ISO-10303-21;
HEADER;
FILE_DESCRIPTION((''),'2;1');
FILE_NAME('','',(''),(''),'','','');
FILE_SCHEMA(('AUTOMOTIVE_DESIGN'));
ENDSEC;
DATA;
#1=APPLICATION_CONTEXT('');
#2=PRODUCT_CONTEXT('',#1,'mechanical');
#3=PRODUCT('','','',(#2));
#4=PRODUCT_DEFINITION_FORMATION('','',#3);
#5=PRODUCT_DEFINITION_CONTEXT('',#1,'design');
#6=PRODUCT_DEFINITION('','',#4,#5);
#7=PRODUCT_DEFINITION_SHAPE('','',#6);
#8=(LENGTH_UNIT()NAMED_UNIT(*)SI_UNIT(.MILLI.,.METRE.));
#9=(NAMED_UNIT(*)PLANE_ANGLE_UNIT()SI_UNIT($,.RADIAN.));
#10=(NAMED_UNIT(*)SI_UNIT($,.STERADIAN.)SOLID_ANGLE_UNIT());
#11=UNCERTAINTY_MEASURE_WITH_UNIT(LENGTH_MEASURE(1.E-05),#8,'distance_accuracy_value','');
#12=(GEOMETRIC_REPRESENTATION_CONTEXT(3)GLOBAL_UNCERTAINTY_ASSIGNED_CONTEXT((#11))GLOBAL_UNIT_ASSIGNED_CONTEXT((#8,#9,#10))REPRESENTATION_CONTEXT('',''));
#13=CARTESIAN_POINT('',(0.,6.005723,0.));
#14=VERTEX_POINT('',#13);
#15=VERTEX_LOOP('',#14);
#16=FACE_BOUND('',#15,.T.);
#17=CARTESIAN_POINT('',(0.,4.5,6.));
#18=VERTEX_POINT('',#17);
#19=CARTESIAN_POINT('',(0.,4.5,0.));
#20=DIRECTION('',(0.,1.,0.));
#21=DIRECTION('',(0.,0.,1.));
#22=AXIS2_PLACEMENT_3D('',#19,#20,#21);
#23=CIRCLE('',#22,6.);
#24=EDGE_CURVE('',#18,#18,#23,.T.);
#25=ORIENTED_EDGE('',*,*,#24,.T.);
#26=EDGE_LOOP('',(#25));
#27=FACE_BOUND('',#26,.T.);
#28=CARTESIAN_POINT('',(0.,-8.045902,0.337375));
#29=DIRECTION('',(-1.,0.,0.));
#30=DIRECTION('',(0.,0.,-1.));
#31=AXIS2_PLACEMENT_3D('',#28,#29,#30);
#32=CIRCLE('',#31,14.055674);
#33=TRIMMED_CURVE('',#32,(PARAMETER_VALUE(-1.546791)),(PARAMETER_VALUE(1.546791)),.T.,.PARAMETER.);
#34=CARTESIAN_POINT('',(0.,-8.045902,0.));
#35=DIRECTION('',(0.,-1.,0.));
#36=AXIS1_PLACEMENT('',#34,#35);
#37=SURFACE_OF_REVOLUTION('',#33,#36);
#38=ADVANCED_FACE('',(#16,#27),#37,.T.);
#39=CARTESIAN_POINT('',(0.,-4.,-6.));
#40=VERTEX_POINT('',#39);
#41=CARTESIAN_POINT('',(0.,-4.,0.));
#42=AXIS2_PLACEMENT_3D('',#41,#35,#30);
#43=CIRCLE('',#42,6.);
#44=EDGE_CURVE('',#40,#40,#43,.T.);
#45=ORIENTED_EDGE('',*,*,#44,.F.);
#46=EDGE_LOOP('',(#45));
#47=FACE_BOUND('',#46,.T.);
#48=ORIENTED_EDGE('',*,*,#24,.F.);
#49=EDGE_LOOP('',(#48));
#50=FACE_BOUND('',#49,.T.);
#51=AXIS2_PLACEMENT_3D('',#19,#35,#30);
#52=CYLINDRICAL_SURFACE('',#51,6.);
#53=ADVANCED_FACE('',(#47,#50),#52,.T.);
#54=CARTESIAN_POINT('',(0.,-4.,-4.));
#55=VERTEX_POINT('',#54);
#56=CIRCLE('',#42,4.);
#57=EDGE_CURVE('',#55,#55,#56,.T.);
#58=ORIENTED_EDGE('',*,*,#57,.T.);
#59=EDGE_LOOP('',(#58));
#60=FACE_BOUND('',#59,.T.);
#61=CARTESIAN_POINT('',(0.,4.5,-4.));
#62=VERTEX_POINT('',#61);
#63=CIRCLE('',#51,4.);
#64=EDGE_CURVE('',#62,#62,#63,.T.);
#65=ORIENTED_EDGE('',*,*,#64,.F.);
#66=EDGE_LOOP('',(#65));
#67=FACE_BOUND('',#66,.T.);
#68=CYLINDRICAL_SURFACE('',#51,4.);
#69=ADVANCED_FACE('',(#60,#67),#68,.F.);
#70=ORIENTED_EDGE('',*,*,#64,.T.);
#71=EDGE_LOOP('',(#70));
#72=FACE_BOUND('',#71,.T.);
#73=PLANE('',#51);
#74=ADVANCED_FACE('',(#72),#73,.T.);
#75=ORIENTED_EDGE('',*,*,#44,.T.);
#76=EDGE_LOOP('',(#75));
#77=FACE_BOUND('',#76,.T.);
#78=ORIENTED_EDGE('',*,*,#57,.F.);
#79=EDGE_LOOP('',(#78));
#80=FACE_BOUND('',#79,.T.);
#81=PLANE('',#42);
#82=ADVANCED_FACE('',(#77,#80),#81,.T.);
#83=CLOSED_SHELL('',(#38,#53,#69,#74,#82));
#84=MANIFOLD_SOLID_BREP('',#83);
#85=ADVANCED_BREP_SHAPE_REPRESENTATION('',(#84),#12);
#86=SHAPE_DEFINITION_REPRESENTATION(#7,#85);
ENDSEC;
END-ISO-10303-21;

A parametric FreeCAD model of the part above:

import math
import FreeCAD as App
import Part
import Sketcher

V = App.Vector

doc = App.newDocument("Part")
params = doc.addObject("Spreadsheet::Sheet", "Params")
for row, (alias, value) in enumerate([
    ("sketch1_diameter", "12 mm"),
    ("sketch1_diameter2", "8 mm"),
    ("pad1_length", "4.5 mm"),
    ("sketch2_height", "6 mm"),
    ("revolution_angle", "360 deg"),
    ("sketch3_diameter", "12 mm"),
    ("sketch3_diameter2", "8 mm"),
    ("pad2_length", "4 mm"),
], start=1):
    params.set(f"A{row}", alias)
    params.set(f"B{row}", "=" + value)
    params.setAlias(f"B{row}", alias)

body = doc.addObject("PartDesign::Body", "Body")

sketch1 = body.newObject("Sketcher::SketchObject", "Sketch")
sketch1.AttachmentSupport = (doc.getObject("XZ_Plane"), [""])
sketch1.MapMode = "FlatFace"
sketch1.addGeometry([
    Part.Circle(V(0, 0, 0), V(0, 0, 1), 6),
    Part.Circle(V(0, 0, 0), V(0, 0, 1), 4),
], False)
sketch1.addConstraint([
    Sketcher.Constraint("Coincident", 0, 3, -1, 1),
    Sketcher.Constraint("Coincident", 1, 3, -1, 1),
    Sketcher.Constraint("Diameter", 0, 12.0),
    Sketcher.Constraint("Diameter", 1, 8.0),
])
sketch1.setExpression("Constraints[2]", "Params.sketch1_diameter")
sketch1.setExpression("Constraints[3]", "Params.sketch1_diameter2")
pad1 = body.newObject("PartDesign::Pad", "Pad")
pad1.Profile = sketch1
pad1.setExpression("Length", "Params.pad1_length")
pad1.Reversed = True

sketch2 = body.newObject("Sketcher::SketchObject", "Sketch001")
sketch2.AttachmentSupport = (doc.getObject("YZ_Plane"), [""])
sketch2.MapMode = "FlatFace"
sketch2.addGeometry([
    Part.LineSegment(V(6, 0, 0), V(4.5, 0, 0)),
    Part.LineSegment(V(4.5, 0, 0), V(4.5, -6, 0)),
    Part.ArcOfCircle(Part.Circle(V(-8, 0.3, 0), V(0, 0, 1), 14.1), math.radians(-27), math.radians(-1)),
], False)
sketch2.addConstraint([
    Sketcher.Constraint("Coincident", 0, 2, 1, 1),
    Sketcher.Constraint("Coincident", 1, 2, 2, 1),
    Sketcher.Constraint("Coincident", 2, 2, 0, 1),
    Sketcher.Constraint("Horizontal", 0),
    Sketcher.Constraint("Vertical", 1),
    Sketcher.Constraint("PointOnObject", 0, 2, -1),
    Sketcher.Constraint("DistanceY", 1, 2, 1, 1, 6.0),
    Sketcher.Constraint("DistanceX", -1, 1, 0, 2, 4.5),
    Sketcher.Constraint("Radius", 2, 14.055674),
    Sketcher.Constraint("DistanceX", 0, 2, 0, 1, 1.505723),
])
sketch2.setExpression("Constraints[6]", "Params.sketch2_height")
revolution = body.newObject("PartDesign::Revolution", "Revolution")
revolution.Profile = sketch2
revolution.ReferenceAxis = (sketch2, ["H_Axis"])
revolution.setExpression("Angle", "Params.revolution_angle")

sketch3 = body.newObject("Sketcher::SketchObject", "Sketch002")
sketch3.AttachmentSupport = (doc.getObject("XZ_Plane"), [""])
sketch3.MapMode = "FlatFace"
sketch3.AttachmentOffset = App.Placement(V(0, 0, 4), App.Rotation())
sketch3.addGeometry([
    Part.Circle(V(0, 0, 0), V(0, 0, 1), 6),
    Part.Circle(V(0, 0, 0), V(0, 0, 1), 4),
], False)
sketch3.addConstraint([
    Sketcher.Constraint("Coincident", 0, 3, -1, 1),
    Sketcher.Constraint("Coincident", 1, 3, -1, 1),
    Sketcher.Constraint("Diameter", 0, 12.0),
    Sketcher.Constraint("Diameter", 1, 8.0),
])
sketch3.setExpression("Constraints[2]", "Params.sketch3_diameter")
sketch3.setExpression("Constraints[3]", "Params.sketch3_diameter2")
pad2 = body.newObject("PartDesign::Pad", "Pad001")
pad2.Profile = sketch3
pad2.setExpression("Length", "Params.pad2_length")
pad2.Reversed = True

doc.recompute()
